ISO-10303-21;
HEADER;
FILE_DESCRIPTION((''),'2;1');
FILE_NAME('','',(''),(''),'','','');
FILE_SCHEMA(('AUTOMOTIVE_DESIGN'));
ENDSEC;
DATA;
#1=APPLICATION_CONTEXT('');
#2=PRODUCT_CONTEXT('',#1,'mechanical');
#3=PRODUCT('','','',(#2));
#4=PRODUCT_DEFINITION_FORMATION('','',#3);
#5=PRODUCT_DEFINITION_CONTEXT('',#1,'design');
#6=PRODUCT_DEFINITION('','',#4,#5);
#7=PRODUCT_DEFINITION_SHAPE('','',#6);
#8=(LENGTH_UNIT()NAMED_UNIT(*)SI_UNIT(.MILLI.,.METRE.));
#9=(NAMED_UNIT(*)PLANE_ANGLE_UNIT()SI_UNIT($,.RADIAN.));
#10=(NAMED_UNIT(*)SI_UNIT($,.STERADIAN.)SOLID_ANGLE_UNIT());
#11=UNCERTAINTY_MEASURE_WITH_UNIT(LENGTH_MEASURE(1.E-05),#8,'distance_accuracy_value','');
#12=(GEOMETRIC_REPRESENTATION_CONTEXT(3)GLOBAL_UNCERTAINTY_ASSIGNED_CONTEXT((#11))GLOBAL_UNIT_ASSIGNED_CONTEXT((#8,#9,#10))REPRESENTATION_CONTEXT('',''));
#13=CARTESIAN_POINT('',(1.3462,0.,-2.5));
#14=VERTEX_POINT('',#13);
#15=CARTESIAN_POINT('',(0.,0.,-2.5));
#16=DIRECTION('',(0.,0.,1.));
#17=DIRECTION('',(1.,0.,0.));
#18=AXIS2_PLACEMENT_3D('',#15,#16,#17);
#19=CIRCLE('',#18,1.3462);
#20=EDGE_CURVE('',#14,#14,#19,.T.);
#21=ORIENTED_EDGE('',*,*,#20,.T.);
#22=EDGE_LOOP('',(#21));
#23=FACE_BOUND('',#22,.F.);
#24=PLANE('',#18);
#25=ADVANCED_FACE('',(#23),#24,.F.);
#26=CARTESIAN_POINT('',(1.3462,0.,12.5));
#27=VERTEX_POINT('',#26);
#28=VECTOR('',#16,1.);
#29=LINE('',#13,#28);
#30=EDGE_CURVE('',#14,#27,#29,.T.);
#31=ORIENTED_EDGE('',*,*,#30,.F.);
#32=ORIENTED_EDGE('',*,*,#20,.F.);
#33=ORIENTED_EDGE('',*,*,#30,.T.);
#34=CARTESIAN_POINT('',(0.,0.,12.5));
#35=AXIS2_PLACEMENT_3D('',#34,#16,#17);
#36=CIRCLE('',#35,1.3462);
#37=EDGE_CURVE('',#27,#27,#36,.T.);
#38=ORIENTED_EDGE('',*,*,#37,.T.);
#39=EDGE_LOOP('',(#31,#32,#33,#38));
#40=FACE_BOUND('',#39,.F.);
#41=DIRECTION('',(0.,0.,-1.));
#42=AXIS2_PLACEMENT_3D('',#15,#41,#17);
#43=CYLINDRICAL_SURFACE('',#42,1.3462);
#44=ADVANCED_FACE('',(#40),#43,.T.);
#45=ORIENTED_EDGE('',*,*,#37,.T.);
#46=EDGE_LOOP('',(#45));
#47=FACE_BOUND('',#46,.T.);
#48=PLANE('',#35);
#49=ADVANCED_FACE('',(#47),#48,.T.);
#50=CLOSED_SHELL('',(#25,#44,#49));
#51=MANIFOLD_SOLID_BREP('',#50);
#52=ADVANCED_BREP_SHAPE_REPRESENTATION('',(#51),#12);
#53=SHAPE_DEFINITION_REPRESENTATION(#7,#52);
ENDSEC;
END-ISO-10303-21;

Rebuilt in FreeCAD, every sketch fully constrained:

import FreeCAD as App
import Part
import Sketcher

V = App.Vector
Q = App.Units.Quantity

doc = App.newDocument("Part")
body = doc.addObject("PartDesign::Body", "Body")

# Sketch on XY plane
sketch1 = doc.addObject("Sketcher::SketchObject", "Sketch")
body.addObject(sketch1)
sketch1.AttachmentSupport = (doc.XY_Plane, [""])
sketch1.MapMode = "FlatFace"
sketch1.AttachmentOffset = App.Placement(V(0, 0, -2.5), App.Rotation())
sketch1.addGeometry(Part.Circle(V(0, 0, 0), V(0, 0, 1), 1.3), False)
sketch1.addConstraint([
    Sketcher.Constraint("Coincident", 0, 3, -1, 1),
    Sketcher.Constraint("Diameter", 0, Q("2.6924 mm")),
])
pad1 = doc.addObject("PartDesign::Pad", "Pad")
body.addObject(pad1)
pad1.Profile = sketch1
pad1.Length = 15

doc.recompute()
